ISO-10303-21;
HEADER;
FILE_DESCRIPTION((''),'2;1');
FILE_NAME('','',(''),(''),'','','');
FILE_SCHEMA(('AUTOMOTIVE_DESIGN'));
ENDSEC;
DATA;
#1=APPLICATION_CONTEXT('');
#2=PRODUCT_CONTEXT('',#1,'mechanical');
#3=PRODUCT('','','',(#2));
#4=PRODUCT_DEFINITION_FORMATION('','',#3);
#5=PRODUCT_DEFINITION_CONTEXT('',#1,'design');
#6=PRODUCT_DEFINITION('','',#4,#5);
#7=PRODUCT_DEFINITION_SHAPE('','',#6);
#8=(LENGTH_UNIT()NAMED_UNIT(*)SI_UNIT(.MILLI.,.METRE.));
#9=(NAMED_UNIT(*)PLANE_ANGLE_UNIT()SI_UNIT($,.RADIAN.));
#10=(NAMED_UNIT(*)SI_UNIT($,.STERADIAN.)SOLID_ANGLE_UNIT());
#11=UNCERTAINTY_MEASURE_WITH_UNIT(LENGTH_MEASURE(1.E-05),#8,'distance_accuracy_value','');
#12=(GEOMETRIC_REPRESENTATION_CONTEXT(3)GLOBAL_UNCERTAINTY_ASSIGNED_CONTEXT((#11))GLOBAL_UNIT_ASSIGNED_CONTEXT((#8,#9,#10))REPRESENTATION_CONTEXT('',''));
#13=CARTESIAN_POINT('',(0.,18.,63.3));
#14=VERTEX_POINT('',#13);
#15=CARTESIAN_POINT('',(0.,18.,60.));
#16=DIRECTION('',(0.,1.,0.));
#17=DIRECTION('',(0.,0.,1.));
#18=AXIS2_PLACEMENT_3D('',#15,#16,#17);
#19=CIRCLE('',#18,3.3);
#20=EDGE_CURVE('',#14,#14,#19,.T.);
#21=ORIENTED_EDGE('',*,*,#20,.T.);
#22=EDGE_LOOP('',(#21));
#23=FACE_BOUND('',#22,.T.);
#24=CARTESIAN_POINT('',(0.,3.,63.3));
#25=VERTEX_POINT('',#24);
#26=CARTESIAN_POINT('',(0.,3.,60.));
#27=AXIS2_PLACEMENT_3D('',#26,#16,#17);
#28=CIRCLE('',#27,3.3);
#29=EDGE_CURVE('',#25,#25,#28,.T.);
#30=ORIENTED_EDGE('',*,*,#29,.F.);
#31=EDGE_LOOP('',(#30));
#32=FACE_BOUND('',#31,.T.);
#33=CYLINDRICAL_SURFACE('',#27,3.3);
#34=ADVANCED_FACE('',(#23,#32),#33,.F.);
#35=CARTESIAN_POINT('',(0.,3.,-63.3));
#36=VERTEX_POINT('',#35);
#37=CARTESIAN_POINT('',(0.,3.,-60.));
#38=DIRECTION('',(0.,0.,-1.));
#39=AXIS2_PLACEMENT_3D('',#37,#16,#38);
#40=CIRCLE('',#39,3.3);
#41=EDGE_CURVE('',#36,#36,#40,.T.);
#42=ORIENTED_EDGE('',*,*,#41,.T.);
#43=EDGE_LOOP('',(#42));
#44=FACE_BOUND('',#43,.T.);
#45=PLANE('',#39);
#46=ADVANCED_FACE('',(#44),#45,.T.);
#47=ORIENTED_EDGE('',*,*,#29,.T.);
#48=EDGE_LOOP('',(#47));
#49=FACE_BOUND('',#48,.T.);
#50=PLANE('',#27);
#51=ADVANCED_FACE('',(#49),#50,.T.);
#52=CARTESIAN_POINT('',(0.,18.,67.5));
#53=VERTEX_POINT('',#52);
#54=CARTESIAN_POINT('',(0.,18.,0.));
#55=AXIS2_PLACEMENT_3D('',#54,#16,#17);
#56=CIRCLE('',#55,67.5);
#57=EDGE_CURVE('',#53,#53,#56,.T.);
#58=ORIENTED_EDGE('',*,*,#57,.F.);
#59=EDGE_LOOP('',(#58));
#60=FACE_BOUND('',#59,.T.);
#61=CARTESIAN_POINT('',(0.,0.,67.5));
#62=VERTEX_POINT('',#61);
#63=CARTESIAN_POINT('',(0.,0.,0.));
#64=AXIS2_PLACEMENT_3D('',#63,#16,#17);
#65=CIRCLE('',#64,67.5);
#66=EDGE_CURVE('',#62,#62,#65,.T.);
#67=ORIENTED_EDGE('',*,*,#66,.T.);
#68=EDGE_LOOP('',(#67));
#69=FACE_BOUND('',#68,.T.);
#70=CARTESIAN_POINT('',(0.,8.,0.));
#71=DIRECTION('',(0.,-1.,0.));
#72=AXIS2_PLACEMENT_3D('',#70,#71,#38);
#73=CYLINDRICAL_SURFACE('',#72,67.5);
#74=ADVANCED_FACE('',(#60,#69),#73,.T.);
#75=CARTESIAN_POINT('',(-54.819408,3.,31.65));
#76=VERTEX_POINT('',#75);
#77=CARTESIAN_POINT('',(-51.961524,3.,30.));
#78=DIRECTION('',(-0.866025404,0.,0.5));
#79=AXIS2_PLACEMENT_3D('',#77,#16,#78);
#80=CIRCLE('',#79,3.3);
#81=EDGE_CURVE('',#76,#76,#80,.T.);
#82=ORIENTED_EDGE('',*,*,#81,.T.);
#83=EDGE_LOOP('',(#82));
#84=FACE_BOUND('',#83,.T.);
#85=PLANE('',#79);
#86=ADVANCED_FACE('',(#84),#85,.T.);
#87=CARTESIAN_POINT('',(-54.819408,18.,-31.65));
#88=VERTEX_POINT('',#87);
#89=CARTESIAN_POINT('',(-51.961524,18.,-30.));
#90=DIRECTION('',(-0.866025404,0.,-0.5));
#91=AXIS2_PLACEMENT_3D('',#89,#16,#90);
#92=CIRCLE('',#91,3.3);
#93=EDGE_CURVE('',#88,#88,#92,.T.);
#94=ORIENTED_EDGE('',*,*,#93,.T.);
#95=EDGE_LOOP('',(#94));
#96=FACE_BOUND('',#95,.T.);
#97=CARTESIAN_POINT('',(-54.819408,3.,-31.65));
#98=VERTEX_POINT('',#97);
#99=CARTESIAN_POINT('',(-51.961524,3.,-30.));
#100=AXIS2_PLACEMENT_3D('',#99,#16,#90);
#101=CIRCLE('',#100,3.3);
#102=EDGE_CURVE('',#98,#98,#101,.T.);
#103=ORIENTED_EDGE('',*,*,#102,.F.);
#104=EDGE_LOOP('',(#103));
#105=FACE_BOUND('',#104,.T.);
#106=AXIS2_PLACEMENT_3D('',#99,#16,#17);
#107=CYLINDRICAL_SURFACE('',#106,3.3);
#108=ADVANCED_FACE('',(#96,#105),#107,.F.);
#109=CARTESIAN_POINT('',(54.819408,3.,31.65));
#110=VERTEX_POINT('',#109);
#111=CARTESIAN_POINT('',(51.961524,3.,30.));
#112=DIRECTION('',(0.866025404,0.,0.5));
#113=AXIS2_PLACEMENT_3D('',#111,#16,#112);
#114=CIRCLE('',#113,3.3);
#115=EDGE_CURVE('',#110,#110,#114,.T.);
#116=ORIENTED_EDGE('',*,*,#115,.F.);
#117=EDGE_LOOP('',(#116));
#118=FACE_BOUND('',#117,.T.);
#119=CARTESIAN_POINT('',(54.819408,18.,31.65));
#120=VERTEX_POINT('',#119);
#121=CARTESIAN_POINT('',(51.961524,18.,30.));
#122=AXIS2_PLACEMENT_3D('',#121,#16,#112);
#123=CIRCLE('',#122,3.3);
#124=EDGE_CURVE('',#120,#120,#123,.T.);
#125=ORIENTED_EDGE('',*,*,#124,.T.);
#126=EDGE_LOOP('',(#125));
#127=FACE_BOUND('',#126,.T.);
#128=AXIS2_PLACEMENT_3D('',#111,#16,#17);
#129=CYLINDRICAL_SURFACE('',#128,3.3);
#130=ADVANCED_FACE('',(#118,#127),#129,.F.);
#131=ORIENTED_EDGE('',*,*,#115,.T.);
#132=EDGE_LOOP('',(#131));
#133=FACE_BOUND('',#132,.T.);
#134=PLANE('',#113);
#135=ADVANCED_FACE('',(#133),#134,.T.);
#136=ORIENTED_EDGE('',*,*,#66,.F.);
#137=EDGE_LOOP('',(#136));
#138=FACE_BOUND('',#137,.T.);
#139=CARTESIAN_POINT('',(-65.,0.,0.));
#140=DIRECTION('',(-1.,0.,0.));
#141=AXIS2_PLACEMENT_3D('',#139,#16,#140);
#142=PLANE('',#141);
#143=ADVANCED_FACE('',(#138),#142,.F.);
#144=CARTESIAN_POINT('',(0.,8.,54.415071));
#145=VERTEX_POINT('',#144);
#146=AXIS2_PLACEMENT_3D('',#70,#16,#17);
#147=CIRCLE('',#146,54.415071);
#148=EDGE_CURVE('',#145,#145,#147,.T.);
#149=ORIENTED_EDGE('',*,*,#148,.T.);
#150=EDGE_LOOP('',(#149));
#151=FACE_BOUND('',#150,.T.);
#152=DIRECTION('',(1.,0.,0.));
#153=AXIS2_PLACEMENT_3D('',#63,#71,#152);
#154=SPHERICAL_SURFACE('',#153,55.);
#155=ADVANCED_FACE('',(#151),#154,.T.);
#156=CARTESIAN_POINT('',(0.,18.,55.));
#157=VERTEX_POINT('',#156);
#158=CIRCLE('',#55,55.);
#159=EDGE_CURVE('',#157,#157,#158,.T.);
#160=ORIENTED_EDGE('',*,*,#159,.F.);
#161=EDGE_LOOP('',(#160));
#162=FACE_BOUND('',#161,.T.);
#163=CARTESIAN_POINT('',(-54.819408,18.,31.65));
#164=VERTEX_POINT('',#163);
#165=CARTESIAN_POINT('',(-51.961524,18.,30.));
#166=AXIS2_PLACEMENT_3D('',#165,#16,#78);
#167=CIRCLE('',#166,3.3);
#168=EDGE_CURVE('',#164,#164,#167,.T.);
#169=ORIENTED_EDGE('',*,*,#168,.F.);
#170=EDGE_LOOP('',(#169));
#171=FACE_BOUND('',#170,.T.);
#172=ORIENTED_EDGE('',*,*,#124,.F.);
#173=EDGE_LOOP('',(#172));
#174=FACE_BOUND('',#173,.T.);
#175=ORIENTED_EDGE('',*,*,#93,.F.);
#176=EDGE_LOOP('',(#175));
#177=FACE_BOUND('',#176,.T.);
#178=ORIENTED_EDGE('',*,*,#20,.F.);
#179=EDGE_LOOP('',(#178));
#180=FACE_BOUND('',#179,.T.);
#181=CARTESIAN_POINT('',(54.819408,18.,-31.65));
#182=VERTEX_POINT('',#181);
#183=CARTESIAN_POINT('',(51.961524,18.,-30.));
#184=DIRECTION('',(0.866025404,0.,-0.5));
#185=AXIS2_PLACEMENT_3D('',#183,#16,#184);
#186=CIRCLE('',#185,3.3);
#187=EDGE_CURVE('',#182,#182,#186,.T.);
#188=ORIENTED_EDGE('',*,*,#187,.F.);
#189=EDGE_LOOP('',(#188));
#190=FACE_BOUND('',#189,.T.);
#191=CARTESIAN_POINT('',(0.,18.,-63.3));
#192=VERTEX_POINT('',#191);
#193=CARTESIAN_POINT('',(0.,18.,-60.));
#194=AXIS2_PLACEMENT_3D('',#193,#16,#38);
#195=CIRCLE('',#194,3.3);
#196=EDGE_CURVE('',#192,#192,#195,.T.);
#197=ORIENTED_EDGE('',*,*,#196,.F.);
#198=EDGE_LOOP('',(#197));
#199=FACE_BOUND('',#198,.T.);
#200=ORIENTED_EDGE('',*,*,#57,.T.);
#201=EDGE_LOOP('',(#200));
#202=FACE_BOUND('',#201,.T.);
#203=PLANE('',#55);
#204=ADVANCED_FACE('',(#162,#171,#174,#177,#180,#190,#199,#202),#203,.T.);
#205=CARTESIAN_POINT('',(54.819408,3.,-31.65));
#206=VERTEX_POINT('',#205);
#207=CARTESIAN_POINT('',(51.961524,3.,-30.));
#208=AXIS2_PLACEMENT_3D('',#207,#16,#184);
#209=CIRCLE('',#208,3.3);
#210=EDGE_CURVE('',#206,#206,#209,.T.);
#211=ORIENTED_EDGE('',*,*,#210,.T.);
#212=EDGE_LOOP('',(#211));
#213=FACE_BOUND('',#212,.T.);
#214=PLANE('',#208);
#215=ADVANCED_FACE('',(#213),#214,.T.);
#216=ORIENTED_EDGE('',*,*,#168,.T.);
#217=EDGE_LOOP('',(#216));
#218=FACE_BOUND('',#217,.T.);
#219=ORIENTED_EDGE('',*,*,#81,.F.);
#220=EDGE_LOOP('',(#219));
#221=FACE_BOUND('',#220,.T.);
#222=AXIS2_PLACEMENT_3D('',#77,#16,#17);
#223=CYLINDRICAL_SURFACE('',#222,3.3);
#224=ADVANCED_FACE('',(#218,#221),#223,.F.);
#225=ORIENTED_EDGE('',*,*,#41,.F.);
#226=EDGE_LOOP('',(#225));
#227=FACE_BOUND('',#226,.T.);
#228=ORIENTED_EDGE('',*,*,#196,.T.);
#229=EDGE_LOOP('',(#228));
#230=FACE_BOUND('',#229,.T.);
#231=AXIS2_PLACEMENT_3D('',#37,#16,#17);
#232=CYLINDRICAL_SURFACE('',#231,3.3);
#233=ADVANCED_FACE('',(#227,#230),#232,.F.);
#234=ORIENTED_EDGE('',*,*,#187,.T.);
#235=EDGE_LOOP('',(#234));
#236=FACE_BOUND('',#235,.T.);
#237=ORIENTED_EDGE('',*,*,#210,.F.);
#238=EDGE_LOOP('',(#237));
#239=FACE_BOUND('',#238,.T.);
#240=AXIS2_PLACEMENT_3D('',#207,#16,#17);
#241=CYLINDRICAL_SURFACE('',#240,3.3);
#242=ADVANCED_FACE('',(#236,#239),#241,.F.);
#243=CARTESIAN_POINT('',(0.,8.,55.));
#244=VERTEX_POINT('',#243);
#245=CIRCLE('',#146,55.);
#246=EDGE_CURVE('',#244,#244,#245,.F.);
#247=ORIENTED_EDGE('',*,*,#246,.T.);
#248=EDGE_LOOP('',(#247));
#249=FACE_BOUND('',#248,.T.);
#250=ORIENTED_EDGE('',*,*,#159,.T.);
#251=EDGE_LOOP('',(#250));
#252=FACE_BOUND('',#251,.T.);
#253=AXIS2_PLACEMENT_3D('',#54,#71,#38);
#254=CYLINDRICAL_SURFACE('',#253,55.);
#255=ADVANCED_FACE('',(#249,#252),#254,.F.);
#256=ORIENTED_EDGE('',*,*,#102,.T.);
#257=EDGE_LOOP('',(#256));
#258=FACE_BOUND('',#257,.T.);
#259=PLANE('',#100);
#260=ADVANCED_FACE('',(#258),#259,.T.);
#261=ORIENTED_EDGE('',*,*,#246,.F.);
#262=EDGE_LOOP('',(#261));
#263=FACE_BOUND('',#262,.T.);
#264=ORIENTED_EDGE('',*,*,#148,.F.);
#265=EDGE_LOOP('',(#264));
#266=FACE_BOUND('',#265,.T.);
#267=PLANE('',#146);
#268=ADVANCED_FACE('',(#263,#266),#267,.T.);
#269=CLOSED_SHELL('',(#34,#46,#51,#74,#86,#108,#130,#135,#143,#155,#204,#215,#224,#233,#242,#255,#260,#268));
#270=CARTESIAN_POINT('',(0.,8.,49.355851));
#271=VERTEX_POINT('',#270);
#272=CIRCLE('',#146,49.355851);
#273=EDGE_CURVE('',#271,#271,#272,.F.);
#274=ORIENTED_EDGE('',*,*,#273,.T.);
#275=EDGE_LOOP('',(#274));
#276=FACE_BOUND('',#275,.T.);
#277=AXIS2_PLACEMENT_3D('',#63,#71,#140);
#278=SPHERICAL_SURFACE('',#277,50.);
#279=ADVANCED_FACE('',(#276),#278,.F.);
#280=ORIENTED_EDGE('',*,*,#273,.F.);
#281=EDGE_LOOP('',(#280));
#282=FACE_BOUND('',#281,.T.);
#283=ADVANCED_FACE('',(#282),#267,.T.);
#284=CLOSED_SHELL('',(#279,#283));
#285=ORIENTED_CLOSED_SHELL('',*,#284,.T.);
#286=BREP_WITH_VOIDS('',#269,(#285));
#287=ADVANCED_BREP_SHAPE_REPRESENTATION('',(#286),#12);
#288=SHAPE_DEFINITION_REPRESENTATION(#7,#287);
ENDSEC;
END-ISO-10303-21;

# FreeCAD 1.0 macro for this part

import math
import FreeCAD as App
import Part
import Sketcher
from FreeCAD import Vector
Q = App.Units.Quantity

doc = App.newDocument("Part")
body = doc.addObject("PartDesign::Body", "Body")

# Sketch on XY plane
sketch1 = doc.addObject("Sketcher::SketchObject", "Sketch")
body.addObject(sketch1)
sketch1.AttachmentSupport = (doc.XY_Plane, [""])
sketch1.MapMode = "FlatFace"
sketch1.addGeometry([
    Part.LineSegment(Vector(-65, 5, 0), Vector(-65, 0, 0)),  # 0
    Part.LineSegment(Vector(-65, 0, 0), Vector(-50, 0, 0)),  # 1
    Part.ArcOfCircle(Part.Circle(Vector(0, 0, 0), Vector(0, 0, 1), 50), math.radians(90), math.radians(180)),  # 2
    Part.LineSegment(Vector(0, 50, 0), Vector(0, 55, 0)),  # 3
    Part.ArcOfCircle(Part.Circle(Vector(0, 0, 0), Vector(0, 0, 1), 55), math.radians(90), math.radians(175)),  # 4
    Part.LineSegment(Vector(-55, 5, 0), Vector(-65, 5, 0)),  # 5
], False)
sketch1.addConstraint([
    Sketcher.Constraint("Coincident", 0, 2, 1, 1),
    Sketcher.Constraint("Coincident", 1, 2, 2, 2),
    Sketcher.Constraint("Coincident", 2, 1, 3, 1),
    Sketcher.Constraint("Coincident", 3, 2, 4, 1),
    Sketcher.Constraint("Coincident", 4, 2, 5, 1),
    Sketcher.Constraint("Coincident", 5, 2, 0, 1),
    Sketcher.Constraint("Vertical", 0),
    Sketcher.Constraint("Horizontal", 1),
    Sketcher.Constraint("Vertical", 3),
    Sketcher.Constraint("Horizontal", 5),
    Sketcher.Constraint("Coincident", 2, 3, -1, 1),
    Sketcher.Constraint("Coincident", 4, 3, -1, 1),
    Sketcher.Constraint("PointOnObject", 0, 2, -1),
    Sketcher.Constraint("PointOnObject", 2, 1, -2),
    Sketcher.Constraint("Equal", 0, 3),
    Sketcher.Constraint("Radius", 2, Q("50 mm")),
    Sketcher.Constraint("Radius", 4, Q("55 mm")),
    Sketcher.Constraint("DistanceX", 1, 1, 1, 2, Q("15 mm")),
])
revolution = doc.addObject("PartDesign::Revolution", "Revolution")
body.addObject(revolution)
revolution.Profile = sketch1
revolution.ReferenceAxis = (sketch1, ["V_Axis"])
revolution.Angle = 360

# Sketch on XZ plane
sketch2 = doc.addObject("Sketcher::SketchObject", "Sketch001")
body.addObject(sketch2)
sketch2.AttachmentSupport = (doc.XZ_Plane, [""])
sketch2.MapMode = "FlatFace"
sketch2.addGeometry(Part.Circle(Vector(0, 0, 0), Vector(0, 0, 1), 68), False)
sketch2.addConstraint([
    Sketcher.Constraint("Coincident", 0, 3, -1, 1),
    Sketcher.Constraint("Diameter", 0, Q("135 mm")),
])
pad1 = doc.addObject("PartDesign::Pad", "Pad")
body.addObject(pad1)
pad1.Profile = sketch2
pad1.Length = 8
pad1.Reversed = True

# Sketch on XZ plane
sketch3 = doc.addObject("Sketcher::SketchObject", "Sketch002")
body.addObject(sketch3)
sketch3.AttachmentSupport = (doc.XZ_Plane, [""])
sketch3.MapMode = "FlatFace"
sketch3.AttachmentOffset = App.Placement(Vector(0, 0, -8), App.Rotation())
sketch3.addGeometry([
    Part.Circle(Vector(0, 0, 0), Vector(0, 0, 1), 68),
    Part.Circle(Vector(0, 0, 0), Vector(0, 0, 1), 55),
], False)
sketch3.addConstraint([
    Sketcher.Constraint("Coincident", 0, 3, -1, 1),
    Sketcher.Constraint("Coincident", 1, 3, -1, 1),
    Sketcher.Constraint("Diameter", 0, Q("135 mm")),
    Sketcher.Constraint("Diameter", 1, Q("110 mm")),
])
pad2 = doc.addObject("PartDesign::Pad", "Pad001")
body.addObject(pad2)
pad2.Profile = sketch3
pad2.Length = 10
pad2.Reversed = True

# Sketch on XZ plane
sketch4 = doc.addObject("Sketcher::SketchObject", "Sketch003")
body.addObject(sketch4)
sketch4.AttachmentSupport = (doc.XZ_Plane, [""])
sketch4.MapMode = "FlatFace"
sketch4.AttachmentOffset = App.Placement(Vector(0, 0, -18), App.Rotation())
sketch4.addGeometry(Part.Circle(Vector(0, 60, 0), Vector(0, 0, 1), 3.3), False)
sketch4.addConstraint([
    Sketcher.Constraint("PointOnObject", 0, 3, -2),
    Sketcher.Constraint("Diameter", 0, Q("6.6 mm")),
    Sketcher.Constraint("DistanceY", -1, 1, 0, 3, Q("60 mm")),
])
pocket1 = doc.addObject("PartDesign::Pocket", "Pocket")
body.addObject(pocket1)
pocket1.Profile = sketch4
pocket1.Length = 15
pocket1.Reversed = True
doc.recompute()

polarpattern = doc.addObject("PartDesign::PolarPattern", "PolarPattern")
body.addObject(polarpattern)
polarpattern.Originals = [pocket1]
polarpattern.Axis = (doc.Y_Axis, [""])
polarpattern.Angle = 360
polarpattern.Occurrences = 6
body.Tip = polarpattern

doc.recompute()
